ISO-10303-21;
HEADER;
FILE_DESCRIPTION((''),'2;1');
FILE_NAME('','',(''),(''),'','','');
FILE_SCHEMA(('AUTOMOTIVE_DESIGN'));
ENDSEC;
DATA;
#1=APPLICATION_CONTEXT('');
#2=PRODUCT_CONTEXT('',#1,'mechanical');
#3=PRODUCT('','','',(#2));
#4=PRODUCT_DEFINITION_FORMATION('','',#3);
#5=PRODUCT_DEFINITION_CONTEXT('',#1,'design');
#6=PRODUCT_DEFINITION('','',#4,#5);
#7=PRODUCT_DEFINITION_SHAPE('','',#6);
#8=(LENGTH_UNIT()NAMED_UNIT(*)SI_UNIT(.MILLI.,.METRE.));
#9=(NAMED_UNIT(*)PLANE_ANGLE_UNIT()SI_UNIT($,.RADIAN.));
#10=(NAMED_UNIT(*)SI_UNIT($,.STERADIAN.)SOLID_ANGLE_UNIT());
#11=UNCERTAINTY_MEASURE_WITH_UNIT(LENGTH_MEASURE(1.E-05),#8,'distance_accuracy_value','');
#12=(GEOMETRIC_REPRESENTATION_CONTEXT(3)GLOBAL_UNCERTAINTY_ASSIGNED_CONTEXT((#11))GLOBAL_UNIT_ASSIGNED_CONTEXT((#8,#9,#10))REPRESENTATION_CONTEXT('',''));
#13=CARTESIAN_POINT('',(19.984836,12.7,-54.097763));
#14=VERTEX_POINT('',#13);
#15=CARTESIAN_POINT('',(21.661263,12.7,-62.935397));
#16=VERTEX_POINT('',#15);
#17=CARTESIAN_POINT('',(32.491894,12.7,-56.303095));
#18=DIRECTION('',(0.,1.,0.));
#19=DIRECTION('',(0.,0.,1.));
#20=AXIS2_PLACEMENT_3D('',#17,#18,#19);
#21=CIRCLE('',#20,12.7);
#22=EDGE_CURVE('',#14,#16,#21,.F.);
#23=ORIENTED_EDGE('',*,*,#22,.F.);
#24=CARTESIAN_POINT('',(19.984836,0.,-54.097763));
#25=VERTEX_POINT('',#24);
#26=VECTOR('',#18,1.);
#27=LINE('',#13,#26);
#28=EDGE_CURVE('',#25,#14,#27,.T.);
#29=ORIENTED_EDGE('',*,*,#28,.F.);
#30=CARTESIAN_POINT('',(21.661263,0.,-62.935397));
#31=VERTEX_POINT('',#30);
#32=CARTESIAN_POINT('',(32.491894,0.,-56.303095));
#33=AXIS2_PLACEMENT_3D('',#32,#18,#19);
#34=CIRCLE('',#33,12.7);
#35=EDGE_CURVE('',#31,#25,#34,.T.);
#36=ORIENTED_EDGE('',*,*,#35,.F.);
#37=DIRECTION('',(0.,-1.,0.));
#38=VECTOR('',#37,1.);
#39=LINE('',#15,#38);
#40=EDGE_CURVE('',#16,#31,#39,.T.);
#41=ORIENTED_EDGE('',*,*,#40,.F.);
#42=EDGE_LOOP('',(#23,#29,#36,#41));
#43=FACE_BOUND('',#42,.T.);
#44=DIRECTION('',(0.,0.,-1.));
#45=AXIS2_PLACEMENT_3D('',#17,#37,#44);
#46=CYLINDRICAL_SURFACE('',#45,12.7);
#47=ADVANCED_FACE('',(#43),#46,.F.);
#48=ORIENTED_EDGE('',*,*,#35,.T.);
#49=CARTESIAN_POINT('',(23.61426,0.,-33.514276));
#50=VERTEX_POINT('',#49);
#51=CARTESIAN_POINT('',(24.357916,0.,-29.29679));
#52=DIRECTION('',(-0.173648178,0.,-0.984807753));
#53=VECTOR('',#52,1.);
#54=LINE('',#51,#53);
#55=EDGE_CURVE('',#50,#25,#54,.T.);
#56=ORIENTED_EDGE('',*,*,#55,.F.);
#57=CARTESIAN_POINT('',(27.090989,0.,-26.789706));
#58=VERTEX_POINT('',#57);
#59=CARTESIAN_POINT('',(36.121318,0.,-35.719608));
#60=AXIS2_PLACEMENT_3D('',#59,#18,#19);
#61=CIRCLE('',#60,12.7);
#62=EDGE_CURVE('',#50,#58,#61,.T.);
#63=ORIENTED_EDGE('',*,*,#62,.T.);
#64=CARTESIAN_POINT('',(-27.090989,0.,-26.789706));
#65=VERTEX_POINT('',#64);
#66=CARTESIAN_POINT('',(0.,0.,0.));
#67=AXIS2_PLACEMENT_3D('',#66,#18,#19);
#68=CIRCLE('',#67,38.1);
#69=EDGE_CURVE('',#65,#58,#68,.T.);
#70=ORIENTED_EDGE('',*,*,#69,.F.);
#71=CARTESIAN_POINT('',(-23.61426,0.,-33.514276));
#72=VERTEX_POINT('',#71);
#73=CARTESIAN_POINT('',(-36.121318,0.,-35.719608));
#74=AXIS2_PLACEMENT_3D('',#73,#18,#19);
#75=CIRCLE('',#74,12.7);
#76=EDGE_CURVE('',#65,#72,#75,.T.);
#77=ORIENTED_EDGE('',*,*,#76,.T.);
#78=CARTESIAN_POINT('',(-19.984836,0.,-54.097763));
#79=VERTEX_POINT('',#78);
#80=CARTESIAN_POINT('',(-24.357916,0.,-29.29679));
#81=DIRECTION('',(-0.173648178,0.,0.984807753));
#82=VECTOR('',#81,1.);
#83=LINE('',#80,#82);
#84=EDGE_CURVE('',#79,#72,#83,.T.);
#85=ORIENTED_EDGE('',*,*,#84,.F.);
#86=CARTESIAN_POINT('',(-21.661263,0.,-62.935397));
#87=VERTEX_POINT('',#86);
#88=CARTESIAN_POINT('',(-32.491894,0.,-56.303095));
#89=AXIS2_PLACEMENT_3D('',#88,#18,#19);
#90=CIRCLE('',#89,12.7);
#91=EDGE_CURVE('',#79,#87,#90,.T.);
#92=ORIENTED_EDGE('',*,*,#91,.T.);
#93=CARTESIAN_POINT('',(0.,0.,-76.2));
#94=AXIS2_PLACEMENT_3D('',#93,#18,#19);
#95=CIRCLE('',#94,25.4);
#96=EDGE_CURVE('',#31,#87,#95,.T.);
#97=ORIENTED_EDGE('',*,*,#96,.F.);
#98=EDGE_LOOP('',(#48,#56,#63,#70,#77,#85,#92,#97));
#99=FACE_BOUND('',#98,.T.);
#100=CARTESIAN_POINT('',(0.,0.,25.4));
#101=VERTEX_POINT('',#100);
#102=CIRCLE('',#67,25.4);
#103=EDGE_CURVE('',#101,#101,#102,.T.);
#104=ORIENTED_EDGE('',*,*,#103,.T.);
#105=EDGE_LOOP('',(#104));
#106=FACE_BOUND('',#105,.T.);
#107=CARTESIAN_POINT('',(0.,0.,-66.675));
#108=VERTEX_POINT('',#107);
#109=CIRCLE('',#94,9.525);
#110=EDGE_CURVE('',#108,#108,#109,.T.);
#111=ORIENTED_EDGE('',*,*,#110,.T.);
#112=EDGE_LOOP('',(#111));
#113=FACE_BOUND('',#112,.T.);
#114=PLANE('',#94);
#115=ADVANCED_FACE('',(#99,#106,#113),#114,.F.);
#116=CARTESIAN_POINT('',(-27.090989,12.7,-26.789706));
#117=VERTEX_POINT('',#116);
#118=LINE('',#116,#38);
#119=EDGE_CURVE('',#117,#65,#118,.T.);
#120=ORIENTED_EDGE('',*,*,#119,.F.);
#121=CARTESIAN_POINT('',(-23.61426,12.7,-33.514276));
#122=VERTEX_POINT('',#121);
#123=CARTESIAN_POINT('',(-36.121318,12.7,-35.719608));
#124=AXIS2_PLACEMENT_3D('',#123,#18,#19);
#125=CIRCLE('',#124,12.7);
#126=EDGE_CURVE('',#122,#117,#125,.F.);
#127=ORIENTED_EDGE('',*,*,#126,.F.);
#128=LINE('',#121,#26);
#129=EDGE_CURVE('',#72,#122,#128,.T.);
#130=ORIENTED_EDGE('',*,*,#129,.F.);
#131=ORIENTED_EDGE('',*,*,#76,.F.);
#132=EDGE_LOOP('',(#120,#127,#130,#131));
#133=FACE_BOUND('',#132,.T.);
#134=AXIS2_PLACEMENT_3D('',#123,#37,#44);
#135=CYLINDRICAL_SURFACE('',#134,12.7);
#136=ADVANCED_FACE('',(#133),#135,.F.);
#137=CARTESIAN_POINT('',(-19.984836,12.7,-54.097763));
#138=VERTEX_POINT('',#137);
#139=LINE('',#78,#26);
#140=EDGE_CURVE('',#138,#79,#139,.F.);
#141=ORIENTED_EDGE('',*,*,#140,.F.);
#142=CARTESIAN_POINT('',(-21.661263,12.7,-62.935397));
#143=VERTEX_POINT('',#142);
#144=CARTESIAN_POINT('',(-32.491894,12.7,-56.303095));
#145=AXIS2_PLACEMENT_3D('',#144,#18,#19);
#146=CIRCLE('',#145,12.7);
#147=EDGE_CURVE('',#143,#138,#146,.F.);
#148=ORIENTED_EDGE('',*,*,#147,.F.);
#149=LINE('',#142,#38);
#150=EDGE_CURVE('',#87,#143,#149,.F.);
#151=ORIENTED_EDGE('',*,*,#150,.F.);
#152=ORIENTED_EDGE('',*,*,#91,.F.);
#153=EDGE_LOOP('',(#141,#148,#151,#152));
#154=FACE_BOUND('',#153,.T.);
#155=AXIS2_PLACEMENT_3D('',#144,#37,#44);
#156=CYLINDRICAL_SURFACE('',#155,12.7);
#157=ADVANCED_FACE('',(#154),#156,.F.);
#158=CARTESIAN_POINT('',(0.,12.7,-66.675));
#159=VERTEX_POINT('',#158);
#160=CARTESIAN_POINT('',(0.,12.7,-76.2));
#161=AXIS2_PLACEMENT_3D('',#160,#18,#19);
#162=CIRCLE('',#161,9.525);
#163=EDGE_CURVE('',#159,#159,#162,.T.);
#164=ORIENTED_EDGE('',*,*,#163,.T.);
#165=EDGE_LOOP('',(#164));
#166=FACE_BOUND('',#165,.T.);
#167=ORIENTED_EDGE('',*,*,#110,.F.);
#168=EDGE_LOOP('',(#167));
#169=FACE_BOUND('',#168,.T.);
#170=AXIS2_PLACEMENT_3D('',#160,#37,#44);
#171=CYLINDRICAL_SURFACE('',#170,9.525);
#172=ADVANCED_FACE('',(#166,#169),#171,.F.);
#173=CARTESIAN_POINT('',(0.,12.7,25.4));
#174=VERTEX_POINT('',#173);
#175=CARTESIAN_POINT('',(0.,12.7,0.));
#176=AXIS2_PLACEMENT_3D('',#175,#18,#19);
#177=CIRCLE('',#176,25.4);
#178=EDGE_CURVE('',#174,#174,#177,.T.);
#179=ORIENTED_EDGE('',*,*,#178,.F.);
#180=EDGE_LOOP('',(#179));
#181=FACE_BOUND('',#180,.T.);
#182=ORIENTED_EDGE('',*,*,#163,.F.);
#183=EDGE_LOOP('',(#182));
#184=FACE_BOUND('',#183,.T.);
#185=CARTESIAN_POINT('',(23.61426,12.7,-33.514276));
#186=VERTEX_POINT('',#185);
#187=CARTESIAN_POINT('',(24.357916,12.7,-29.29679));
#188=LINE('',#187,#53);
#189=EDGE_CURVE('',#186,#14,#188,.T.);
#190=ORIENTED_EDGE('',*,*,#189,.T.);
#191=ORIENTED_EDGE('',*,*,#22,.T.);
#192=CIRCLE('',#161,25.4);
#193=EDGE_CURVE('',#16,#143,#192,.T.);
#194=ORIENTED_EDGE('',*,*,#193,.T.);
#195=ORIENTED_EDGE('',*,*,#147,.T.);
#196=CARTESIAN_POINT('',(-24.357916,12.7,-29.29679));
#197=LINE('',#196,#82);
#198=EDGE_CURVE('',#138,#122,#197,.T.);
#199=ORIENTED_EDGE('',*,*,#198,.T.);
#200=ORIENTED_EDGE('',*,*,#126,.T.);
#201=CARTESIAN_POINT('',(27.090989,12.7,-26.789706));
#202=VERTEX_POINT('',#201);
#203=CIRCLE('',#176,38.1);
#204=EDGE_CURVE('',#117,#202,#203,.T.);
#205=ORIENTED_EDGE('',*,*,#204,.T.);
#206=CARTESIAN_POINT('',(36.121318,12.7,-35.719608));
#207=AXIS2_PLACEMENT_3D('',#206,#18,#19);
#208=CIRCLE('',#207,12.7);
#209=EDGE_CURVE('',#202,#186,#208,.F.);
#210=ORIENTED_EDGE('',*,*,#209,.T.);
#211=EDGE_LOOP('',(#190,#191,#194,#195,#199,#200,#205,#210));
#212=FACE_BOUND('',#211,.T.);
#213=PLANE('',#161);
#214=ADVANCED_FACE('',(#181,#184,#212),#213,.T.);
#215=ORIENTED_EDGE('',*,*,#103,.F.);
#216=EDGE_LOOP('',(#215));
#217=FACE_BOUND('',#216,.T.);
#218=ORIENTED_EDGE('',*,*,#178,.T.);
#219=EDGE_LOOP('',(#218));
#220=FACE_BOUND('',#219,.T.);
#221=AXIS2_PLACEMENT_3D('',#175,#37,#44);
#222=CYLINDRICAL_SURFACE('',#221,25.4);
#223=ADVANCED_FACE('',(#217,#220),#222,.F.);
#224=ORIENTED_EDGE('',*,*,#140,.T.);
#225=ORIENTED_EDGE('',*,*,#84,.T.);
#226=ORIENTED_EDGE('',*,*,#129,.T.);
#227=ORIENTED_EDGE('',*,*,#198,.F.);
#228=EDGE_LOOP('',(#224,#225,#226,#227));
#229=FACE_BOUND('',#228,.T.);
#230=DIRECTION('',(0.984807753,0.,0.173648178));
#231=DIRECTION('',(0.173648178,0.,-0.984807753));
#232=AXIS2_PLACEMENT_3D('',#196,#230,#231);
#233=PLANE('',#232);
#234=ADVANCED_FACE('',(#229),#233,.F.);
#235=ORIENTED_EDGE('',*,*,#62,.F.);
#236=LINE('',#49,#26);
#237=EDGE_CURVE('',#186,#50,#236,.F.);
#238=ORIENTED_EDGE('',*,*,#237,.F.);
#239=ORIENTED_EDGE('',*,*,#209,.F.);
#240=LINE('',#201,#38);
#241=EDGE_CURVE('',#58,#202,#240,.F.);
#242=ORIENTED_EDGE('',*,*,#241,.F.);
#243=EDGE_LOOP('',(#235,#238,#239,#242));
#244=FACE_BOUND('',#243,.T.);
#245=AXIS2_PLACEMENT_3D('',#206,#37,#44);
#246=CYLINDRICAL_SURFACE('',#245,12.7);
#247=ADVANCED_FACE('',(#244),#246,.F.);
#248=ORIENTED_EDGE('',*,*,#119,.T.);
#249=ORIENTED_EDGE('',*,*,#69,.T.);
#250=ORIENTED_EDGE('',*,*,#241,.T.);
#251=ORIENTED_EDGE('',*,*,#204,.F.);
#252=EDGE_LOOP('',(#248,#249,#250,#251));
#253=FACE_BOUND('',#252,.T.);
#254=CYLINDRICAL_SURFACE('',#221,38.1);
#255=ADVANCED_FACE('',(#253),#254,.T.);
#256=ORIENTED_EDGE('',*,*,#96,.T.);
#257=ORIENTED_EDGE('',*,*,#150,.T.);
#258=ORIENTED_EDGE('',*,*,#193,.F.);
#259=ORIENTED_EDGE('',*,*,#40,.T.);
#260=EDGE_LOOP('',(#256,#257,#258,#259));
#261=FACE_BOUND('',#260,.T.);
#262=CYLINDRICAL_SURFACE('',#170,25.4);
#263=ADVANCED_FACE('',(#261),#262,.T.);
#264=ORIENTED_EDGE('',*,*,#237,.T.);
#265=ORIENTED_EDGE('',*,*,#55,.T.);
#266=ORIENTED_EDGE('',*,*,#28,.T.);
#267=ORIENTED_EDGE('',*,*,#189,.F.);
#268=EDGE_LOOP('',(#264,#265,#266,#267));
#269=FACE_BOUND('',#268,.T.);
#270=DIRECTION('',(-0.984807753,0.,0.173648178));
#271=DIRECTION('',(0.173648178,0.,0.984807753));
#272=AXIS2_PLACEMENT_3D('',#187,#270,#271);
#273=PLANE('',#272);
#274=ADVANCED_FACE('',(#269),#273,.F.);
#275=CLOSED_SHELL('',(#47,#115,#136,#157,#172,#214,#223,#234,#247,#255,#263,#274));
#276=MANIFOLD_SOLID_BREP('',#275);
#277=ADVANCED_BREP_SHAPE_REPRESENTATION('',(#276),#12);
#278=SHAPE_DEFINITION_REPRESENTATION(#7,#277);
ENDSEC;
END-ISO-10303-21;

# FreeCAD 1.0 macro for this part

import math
import FreeCAD as App
import Part
import Sketcher
Q = App.Units.Quantity


def edges_at(feature, points):
    """Names of the edges that pass closest to the given points."""
    edges = feature.Shape.Edges
    near = lambda p: min(range(len(edges)), key=lambda i: edges[i].distToShape(Part.Vertex(*p))[0])
    return sorted({f"Edge{near(p) + 1}" for p in points})

doc = App.newDocument("Part")
body = doc.addObject("PartDesign::Body", "Body")

# Sketch on XZ plane
sketch1 = doc.addObject("Sketcher::SketchObject", "Sketch")
body.addObject(sketch1)
sketch1.AttachmentSupport = (doc.XZ_Plane, [""])
sketch1.MapMode = "FlatFace"
sketch1.addGeometry(Part.LineSegment(App.Vector(-19, -59, 0), App.Vector(-24, -29, 0)), False)
sketch1.addGeometry(Part.ArcOfCircle(Part.Circle(App.Vector(0, 0, 0), App.Vector(0, 0, 1), 38), math.radians(-50), math.radians(230)), False)
sketch1.addGeometry(Part.LineSegment(App.Vector(24, -29, 0), App.Vector(19, -59, 0)), False)
sketch1.addGeometry(Part.ArcOfCircle(Part.Circle(App.Vector(0, -76, 0), App.Vector(0, 0, 1), 25), math.radians(139), math.radians(401)), False)
sketch1.addGeometry(Part.Circle(App.Vector(0, 0, 0), App.Vector(0, 0, 1), 25), False)
sketch1.addGeometry(Part.Circle(App.Vector(0, -76, 0), App.Vector(0, 0, 1), 10), False)
sketch1.addConstraint(Sketcher.Constraint("Coincident", 0, 2, 1, 2))
sketch1.addConstraint(Sketcher.Constraint("Coincident", 1, 1, 2, 1))
sketch1.addConstraint(Sketcher.Constraint("Coincident", 2, 2, 3, 2))
sketch1.addConstraint(Sketcher.Constraint("Coincident", 3, 1, 0, 1))
sketch1.addConstraint(Sketcher.Constraint("Coincident", 1, 3, -1, 1))
sketch1.addConstraint(Sketcher.Constraint("Coincident", 4, 3, -1, 1))
sketch1.addConstraint(Sketcher.Constraint("Coincident", 5, 3, 3, 3))
sketch1.addConstraint(Sketcher.Constraint("Equal", 3, 4))
sketch1.addConstraint(Sketcher.Constraint("Symmetric", 2, 2, 3, 1, -2))
sketch1.addConstraint(Sketcher.Constraint("Horizontal", 0, 2, 1, 1))
sketch1.addConstraint(Sketcher.Constraint("Diameter", 4, Q("2 in")))
sketch1.addConstraint(Sketcher.Constraint("Radius", 1, Q("1.5 in")))
sketch1.addConstraint(Sketcher.Constraint("Diameter", 5, Q("0.75 in")))
sketch1.addConstraint(Sketcher.Constraint("DistanceY", 3, 3, -1, 1, Q("3 in")))
sketch1.addConstraint(Sketcher.Constraint("Angle", 0, Q("100 deg")))
sketch1.addConstraint(Sketcher.Constraint("DistanceX", 3, 1, 2, 2, Q("1.5 in")))
pad1 = doc.addObject("PartDesign::Pad", "Pad")
body.addObject(pad1)
pad1.Profile = sketch1
pad1.Length = Q("0.5 in")
pad1.Reversed = True
doc.recompute()

fillet = doc.addObject("PartDesign::Fillet", "Fillet")
body.addObject(fillet)
fillet.Base = (pad1, edges_at(pad1, [
    (19.05, 6.35, -59.399),
    (24.358, 6.35, -29.297),
    (-24.358, 6.35, -29.297),
    (-19.05, 6.35, -59.399),
]))
fillet.Radius = Q("0.5 in")

doc.recompute()
